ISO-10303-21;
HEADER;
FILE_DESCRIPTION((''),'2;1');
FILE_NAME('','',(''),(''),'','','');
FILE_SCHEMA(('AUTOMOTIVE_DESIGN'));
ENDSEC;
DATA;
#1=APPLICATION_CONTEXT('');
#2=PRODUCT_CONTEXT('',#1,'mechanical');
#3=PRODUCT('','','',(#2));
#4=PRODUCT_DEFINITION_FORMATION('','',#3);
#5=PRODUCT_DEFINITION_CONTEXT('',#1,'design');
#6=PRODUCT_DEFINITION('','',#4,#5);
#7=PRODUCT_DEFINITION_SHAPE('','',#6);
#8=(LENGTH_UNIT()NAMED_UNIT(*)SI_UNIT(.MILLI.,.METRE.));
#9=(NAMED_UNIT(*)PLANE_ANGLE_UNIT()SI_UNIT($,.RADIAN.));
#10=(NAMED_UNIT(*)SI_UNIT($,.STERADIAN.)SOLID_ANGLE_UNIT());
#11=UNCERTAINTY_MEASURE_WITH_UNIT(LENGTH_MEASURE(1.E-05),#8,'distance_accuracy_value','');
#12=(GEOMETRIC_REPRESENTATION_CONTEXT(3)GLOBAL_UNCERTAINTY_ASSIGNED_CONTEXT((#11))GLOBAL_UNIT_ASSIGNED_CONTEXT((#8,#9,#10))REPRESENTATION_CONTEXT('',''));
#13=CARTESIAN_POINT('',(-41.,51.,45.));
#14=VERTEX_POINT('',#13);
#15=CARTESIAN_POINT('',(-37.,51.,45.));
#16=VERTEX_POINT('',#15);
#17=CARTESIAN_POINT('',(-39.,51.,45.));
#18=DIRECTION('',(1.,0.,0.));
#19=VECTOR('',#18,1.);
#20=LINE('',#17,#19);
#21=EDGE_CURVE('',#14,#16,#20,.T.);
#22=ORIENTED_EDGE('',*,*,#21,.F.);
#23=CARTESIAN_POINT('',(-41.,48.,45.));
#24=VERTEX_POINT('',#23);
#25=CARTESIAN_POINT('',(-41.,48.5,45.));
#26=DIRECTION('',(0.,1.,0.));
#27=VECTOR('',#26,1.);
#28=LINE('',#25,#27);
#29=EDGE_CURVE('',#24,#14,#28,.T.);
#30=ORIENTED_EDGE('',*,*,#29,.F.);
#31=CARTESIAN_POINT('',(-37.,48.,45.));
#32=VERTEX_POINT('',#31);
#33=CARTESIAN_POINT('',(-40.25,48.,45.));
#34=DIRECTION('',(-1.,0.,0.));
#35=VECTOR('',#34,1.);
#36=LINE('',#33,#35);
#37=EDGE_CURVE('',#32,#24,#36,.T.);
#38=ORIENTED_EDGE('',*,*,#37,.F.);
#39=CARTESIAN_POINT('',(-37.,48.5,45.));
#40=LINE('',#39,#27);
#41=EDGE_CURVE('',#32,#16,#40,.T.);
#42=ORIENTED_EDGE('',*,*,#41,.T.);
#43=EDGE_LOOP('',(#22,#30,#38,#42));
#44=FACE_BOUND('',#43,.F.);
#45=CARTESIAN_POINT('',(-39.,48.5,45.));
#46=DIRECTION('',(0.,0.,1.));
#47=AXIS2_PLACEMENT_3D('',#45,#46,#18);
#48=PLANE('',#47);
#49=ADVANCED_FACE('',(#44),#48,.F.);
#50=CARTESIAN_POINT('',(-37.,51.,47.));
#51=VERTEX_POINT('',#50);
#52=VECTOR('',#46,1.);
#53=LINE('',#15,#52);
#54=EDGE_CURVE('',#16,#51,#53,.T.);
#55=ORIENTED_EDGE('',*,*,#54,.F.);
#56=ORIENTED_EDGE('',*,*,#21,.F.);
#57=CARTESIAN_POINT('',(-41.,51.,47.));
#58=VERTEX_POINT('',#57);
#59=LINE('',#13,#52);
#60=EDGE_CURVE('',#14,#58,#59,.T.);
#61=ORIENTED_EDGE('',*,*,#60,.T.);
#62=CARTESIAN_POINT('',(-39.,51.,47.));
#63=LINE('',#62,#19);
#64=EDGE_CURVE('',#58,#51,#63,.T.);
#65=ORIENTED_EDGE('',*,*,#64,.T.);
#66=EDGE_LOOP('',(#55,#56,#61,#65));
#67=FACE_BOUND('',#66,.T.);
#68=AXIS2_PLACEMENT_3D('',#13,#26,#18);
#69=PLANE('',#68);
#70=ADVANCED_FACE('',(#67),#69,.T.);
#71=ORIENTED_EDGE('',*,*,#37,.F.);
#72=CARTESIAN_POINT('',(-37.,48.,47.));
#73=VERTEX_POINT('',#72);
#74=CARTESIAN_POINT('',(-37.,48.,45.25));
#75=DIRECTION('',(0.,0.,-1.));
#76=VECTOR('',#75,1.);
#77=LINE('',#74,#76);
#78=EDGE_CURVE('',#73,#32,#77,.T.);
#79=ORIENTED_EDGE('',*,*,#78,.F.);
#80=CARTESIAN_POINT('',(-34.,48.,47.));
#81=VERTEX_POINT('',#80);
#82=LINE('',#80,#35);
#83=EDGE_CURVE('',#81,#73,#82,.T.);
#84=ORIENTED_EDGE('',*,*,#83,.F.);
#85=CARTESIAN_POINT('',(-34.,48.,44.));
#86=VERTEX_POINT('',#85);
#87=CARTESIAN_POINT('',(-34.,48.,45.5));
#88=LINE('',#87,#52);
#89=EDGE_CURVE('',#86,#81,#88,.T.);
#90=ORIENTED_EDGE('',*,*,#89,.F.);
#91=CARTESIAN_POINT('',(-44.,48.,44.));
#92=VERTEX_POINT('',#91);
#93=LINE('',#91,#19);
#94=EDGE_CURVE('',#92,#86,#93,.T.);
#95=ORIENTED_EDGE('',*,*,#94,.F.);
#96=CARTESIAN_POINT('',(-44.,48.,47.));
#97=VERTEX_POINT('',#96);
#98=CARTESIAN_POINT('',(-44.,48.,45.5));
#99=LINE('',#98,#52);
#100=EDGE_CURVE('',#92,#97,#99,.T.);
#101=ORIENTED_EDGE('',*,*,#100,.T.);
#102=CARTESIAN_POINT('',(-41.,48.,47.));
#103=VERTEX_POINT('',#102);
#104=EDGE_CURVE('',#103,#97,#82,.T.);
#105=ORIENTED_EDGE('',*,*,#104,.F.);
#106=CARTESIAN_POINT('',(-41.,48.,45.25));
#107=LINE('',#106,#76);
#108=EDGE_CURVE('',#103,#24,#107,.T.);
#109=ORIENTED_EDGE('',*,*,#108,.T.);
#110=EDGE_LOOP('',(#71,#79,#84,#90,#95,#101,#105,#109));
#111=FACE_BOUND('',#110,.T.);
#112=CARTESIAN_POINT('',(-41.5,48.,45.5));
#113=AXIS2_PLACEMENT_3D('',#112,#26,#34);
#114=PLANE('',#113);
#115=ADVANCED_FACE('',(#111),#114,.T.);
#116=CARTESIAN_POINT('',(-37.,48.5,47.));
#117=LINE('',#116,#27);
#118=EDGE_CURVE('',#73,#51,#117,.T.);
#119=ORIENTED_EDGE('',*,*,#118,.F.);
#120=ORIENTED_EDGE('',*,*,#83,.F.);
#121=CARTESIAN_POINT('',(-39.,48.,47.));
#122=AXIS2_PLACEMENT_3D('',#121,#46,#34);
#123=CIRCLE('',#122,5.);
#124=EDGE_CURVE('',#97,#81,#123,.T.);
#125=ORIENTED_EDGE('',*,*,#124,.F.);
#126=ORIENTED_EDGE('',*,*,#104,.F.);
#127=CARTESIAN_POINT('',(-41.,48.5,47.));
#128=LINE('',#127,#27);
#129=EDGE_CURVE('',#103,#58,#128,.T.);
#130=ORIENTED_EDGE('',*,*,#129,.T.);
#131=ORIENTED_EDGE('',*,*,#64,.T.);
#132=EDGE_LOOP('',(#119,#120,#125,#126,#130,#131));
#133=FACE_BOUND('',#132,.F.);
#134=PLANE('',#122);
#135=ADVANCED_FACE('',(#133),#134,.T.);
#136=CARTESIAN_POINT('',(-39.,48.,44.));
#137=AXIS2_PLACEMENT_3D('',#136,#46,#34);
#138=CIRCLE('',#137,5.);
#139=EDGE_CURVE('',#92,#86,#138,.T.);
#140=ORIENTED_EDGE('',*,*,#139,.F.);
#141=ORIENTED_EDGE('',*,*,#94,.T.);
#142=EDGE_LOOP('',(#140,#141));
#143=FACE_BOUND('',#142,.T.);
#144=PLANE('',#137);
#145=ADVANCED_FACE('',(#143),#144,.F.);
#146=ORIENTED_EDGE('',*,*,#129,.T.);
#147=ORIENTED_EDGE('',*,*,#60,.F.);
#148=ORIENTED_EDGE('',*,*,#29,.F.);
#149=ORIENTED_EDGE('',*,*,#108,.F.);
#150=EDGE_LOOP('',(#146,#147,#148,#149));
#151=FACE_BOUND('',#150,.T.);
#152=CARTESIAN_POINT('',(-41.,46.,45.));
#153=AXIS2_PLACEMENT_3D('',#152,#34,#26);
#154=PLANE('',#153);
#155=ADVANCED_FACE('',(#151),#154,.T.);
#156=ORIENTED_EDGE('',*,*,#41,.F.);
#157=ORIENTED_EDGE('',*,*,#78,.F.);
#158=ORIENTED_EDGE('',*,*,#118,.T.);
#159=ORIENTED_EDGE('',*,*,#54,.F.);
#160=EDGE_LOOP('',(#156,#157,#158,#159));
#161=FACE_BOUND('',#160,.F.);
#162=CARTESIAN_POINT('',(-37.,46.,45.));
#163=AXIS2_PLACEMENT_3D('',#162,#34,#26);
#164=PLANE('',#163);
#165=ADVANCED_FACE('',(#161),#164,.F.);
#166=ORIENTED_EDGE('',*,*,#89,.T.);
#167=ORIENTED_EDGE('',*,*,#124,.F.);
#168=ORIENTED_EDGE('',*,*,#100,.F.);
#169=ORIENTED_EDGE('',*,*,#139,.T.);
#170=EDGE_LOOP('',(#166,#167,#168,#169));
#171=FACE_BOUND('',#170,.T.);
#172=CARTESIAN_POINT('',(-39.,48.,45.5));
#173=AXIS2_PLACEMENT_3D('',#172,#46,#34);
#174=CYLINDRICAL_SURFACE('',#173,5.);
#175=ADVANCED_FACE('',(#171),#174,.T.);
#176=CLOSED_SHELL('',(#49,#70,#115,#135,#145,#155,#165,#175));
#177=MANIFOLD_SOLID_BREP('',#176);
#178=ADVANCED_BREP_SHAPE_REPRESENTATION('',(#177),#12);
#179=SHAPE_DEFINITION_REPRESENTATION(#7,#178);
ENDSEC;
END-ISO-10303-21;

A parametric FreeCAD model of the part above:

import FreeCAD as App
import Part
import Sketcher
from FreeCAD import Vector
Q = App.Units.Quantity


def add_polygon(sketch, points):
    """Adds a closed chain of lines whose ends are joined by coincident constraints."""
    first, n = sketch.GeometryCount, len(points)
    for a, b in zip(points, points[1:] + points[:1]):
        sketch.addGeometry(Part.LineSegment(App.Vector(*a, 0), App.Vector(*b, 0)), False)
    for i in range(n):
        sketch.addConstraint(Sketcher.Constraint("Coincident", first + i, 2, first + (i + 1) % n, 1))

doc = App.newDocument("Part")
body = doc.addObject("PartDesign::Body", "Body")

# Sketch on XZ plane
sketch1 = body.newObject("Sketcher::SketchObject", "Sketch")
sketch1.AttachmentSupport = (doc.getObject("XZ_Plane"), [""])
sketch1.MapMode = "FlatFace"
sketch1.AttachmentOffset = App.Placement(Vector(0, 0, -48), App.Rotation())
add_polygon(sketch1, [(-39, 47), (-39, 44), (-44, 44), (-44, 47)])  # lines 0-3
sketch1.addGeometry(Part.LineSegment(Vector(-39, 44, 0), Vector(-39, 47, 0)), True)  # axis
sketch1.addConstraint([
    Sketcher.Constraint("Vertical", 0),
    Sketcher.Constraint("Horizontal", 1),
    Sketcher.Constraint("Vertical", 2),
    Sketcher.Constraint("Horizontal", 3),
    Sketcher.Constraint("Vertical", 4),
    Sketcher.Constraint("Coincident", 4, 1, 0, 2),
    Sketcher.Constraint("Horizontal", 2, 2, 4, 2),
    Sketcher.Constraint("DistanceX", 1, 2, 1, 1, Q("5 mm")),
    Sketcher.Constraint("DistanceY", 0, 2, 0, 1, Q("3 mm")),
    Sketcher.Constraint("DistanceX", 0, 2, -1, 1, Q("39 mm")),
    Sketcher.Constraint("DistanceY", -1, 1, 0, 2, Q("44 mm")),
])
revolution = body.newObject("PartDesign::Revolution", "Revolution")
revolution.Profile = sketch1
revolution.ReferenceAxis = (sketch1, ["Axis0"])
revolution.Angle = 180
body2 = doc.addObject("PartDesign::Body", "Body001")

# Sketch on XY plane
sketch2 = body2.newObject("Sketcher::SketchObject", "Sketch001")
sketch2.AttachmentSupport = (doc.getObject("XY_Plane001"), [""])
sketch2.MapMode = "FlatFace"
sketch2.AttachmentOffset = App.Placement(Vector(0, 0, 45), App.Rotation())
add_polygon(sketch2, [(-41, 51), (-41, 46), (-37, 46), (-37, 51)])  # lines 0-3
sketch2.addConstraint([
    Sketcher.Constraint("Vertical", 0),
    Sketcher.Constraint("Horizontal", 1),
    Sketcher.Constraint("Vertical", 2),
    Sketcher.Constraint("Horizontal", 3),
    Sketcher.Constraint("DistanceX", 1, 1, 1, 2, Q("4 mm")),
    Sketcher.Constraint("DistanceY", 0, 2, 0, 1, Q("5 mm")),
    Sketcher.Constraint("DistanceX", 0, 2, -1, 1, Q("41 mm")),
    Sketcher.Constraint("DistanceY", -1, 1, 0, 2, Q("46 mm")),
])
pad1 = body2.newObject("PartDesign::Pad", "Pad")
pad1.Profile = sketch2
pad1.Length = 2
doc.recompute()

boolean = body2.newObject("PartDesign::Boolean", "Boolean")
boolean.Type = "Fuse"
boolean.addObjects([body])

doc.recompute()
